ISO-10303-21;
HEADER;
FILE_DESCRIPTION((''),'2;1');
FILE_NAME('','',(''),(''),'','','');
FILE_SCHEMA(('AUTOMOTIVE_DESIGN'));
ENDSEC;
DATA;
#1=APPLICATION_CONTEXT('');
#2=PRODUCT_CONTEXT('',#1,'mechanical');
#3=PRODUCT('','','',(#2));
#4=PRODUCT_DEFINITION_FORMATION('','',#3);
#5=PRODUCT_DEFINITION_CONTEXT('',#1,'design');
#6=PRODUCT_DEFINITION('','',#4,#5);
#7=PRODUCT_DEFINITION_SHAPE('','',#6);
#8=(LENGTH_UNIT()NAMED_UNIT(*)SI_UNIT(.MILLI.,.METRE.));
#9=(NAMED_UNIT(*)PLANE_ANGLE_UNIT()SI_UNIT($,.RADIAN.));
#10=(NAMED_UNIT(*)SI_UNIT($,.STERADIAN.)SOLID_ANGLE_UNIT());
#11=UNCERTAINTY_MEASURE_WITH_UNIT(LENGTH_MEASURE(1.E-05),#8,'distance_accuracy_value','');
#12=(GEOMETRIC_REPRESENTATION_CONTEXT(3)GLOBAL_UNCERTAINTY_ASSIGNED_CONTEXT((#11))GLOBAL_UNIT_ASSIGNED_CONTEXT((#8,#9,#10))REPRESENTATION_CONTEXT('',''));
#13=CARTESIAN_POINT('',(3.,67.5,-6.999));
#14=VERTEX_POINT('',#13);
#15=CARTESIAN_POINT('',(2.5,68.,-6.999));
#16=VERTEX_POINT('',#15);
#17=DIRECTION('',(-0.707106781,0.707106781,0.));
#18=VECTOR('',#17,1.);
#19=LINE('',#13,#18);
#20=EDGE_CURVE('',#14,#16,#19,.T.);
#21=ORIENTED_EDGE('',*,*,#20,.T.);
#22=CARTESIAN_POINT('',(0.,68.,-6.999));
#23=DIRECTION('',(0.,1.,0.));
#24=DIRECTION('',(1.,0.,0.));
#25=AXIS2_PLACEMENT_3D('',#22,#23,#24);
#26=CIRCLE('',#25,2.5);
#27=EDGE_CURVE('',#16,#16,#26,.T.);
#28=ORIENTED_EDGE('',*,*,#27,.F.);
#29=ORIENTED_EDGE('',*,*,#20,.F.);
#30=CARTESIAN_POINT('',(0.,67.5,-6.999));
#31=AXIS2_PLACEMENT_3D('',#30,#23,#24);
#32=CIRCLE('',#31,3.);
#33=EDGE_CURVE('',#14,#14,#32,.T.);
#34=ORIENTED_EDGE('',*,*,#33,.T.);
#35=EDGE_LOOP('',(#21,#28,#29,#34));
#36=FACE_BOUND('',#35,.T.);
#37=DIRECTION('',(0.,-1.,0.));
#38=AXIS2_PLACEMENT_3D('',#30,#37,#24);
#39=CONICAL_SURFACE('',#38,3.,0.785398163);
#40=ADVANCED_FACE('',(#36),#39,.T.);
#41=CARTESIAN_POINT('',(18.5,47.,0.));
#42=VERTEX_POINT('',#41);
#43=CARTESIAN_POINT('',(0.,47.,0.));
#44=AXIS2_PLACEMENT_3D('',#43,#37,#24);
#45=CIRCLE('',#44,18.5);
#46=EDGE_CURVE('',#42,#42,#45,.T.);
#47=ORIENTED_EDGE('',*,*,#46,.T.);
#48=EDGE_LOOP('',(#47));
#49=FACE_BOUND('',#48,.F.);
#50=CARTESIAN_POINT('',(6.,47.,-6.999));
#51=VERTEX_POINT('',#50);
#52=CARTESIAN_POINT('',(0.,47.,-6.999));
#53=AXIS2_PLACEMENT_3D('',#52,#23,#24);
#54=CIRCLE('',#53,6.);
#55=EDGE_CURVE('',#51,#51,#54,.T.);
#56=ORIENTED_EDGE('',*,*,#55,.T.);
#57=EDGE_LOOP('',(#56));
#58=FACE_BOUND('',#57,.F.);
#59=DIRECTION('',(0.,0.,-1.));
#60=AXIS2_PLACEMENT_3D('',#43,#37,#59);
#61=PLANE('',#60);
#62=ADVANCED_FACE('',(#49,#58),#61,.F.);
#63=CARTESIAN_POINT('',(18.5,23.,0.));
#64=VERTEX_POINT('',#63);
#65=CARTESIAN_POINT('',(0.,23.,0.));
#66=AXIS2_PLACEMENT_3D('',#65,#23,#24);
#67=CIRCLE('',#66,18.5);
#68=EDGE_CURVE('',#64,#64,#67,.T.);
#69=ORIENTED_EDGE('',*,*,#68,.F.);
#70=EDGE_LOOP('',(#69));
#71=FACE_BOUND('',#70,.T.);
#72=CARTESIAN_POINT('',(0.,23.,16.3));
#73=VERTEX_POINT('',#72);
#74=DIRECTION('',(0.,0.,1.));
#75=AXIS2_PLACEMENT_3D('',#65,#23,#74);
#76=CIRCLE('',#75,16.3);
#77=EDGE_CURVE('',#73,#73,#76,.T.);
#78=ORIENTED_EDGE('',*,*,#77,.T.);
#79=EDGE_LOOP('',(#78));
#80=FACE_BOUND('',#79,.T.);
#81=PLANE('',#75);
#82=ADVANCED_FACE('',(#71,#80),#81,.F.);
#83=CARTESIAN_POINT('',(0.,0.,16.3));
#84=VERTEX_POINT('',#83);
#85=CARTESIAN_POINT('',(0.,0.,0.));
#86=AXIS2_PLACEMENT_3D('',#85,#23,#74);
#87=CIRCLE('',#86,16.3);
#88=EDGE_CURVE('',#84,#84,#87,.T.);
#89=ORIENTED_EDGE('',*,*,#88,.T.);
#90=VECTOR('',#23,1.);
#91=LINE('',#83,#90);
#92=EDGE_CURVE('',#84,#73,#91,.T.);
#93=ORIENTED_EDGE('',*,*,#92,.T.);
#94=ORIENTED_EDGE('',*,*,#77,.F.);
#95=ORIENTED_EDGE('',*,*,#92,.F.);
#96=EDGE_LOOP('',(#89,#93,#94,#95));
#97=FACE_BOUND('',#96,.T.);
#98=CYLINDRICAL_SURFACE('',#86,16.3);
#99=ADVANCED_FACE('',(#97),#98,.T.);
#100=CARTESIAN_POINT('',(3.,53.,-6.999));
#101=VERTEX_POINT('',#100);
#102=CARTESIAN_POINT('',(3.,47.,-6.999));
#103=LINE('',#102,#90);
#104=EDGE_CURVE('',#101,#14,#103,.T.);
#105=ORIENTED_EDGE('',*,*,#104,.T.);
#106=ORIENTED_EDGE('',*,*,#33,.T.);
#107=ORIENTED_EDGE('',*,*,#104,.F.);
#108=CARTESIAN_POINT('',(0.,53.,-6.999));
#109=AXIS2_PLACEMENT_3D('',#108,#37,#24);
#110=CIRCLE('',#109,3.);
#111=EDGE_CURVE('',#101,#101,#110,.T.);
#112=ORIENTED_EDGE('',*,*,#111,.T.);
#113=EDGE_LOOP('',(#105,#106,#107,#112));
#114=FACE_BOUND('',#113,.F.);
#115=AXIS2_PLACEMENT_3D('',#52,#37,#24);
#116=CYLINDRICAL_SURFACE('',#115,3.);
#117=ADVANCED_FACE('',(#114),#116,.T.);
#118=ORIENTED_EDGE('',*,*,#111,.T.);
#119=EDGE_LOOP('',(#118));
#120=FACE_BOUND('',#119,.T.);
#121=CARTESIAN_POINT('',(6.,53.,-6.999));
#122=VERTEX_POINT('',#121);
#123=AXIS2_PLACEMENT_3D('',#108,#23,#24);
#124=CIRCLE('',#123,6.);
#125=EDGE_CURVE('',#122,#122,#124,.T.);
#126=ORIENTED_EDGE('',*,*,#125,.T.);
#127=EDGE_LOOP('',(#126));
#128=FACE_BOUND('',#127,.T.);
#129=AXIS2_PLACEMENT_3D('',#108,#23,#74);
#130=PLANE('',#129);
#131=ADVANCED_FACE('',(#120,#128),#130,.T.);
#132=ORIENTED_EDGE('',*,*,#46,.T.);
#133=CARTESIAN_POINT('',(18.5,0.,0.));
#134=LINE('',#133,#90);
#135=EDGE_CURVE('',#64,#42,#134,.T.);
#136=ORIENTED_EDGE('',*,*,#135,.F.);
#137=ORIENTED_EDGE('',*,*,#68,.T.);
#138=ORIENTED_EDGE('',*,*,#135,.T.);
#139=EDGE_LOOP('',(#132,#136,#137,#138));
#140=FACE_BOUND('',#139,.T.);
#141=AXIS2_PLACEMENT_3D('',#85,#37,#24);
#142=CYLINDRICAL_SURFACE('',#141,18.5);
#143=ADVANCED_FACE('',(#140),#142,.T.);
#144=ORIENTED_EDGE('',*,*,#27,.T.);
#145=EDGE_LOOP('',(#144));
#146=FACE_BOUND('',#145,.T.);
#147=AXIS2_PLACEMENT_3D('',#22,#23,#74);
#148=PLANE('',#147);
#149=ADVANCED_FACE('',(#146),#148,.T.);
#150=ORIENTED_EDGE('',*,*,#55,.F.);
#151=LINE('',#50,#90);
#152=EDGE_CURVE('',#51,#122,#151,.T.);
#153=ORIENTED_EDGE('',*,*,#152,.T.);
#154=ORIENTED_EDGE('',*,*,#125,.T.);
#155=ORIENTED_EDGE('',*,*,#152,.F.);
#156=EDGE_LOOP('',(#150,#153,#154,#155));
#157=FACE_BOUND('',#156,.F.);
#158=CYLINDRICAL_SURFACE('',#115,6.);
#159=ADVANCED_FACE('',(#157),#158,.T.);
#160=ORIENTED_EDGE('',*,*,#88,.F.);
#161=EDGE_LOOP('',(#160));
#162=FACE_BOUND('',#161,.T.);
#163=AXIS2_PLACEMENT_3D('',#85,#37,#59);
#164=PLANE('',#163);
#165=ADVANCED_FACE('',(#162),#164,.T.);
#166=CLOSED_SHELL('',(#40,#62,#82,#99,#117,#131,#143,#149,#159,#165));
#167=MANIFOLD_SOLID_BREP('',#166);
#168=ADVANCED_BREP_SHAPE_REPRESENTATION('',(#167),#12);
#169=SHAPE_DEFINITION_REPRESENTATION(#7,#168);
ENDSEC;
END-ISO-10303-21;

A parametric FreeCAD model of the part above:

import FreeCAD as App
import Part
import Sketcher
from FreeCAD import Vector


def edges_at(feature, points):
    """Names of the edges that pass closest to the given points."""
    edges = feature.Shape.Edges
    near = lambda p: min(range(len(edges)), key=lambda i: edges[i].distToShape(Part.Vertex(*p))[0])
    return sorted({f"Edge{near(p) + 1}" for p in points})


def add_polygon(sketch, points):
    """Adds a closed chain of lines whose ends are joined by coincident constraints."""
    first, n = sketch.GeometryCount, len(points)
    for a, b in zip(points, points[1:] + points[:1]):
        sketch.addGeometry(Part.LineSegment(App.Vector(*a, 0), App.Vector(*b, 0)), False)
    for i in range(n):
        sketch.addConstraint(Sketcher.Constraint("Coincident", first + i, 2, first + (i + 1) % n, 1))

doc = App.newDocument("Part")
params = doc.addObject("Spreadsheet::Sheet", "Params")
for row, (alias, value) in enumerate([
    ("sketch1_diameter", "37 mm"),
    ("pad1_length", "47 mm"),
    ("sketch2_diameter", "12 mm"),
    ("pad2_length", "6 mm"),
    ("sketch3_diameter", "6 mm"),
    ("pad3_length", "21 mm"),
    ("chamfer_size", "0.5 mm"),
    ("sketch4_width", "23 mm"),
    ("sketch4_height", "2.2 mm"),
    ("groove_angle", "360 deg"),
], start=1):
    params.set(f"A{row}", alias)
    params.set(f"B{row}", "=" + value)
    params.setAlias(f"B{row}", alias)

body = doc.addObject("PartDesign::Body", "Body")

# Sketch on XZ plane
sketch1 = doc.addObject("Sketcher::SketchObject", "Sketch")
body.addObject(sketch1)
sketch1.AttachmentSupport = (doc.XZ_Plane, [""])
sketch1.MapMode = "FlatFace"
sketch1.addGeometry(Part.Circle(Vector(0, 0, 0), Vector(0, 0, 1), 18), False)
sketch1.addConstraint([
    Sketcher.Constraint("Coincident", 0, 3, -1, 1),
    Sketcher.Constraint("Diameter", 0, 37.0),
])
sketch1.setExpression("Constraints[1]", "Params.sketch1_diameter")
pad1 = doc.addObject("PartDesign::Pad", "Pad")
body.addObject(pad1)
pad1.Profile = sketch1
pad1.setExpression("Length", "Params.pad1_length")
pad1.Reversed = True

# Sketch on XZ plane
sketch2 = doc.addObject("Sketcher::SketchObject", "Sketch001")
body.addObject(sketch2)
sketch2.AttachmentSupport = (doc.XZ_Plane, [""])
sketch2.MapMode = "FlatFace"
sketch2.AttachmentOffset = App.Placement(Vector(0, 0, -47), App.Rotation())
sketch2.addGeometry(Part.Circle(Vector(0, -7, 0), Vector(0, 0, 1), 6), False)
sketch2.addConstraint([
    Sketcher.Constraint("PointOnObject", 0, 3, -2),
    Sketcher.Constraint("Diameter", 0, 12.0),
    Sketcher.Constraint("DistanceY", 0, 3, -1, 1, 6.999),
])
sketch2.setExpression("Constraints[1]", "Params.sketch2_diameter")
pad2 = doc.addObject("PartDesign::Pad", "Pad001")
body.addObject(pad2)
pad2.Profile = sketch2
pad2.setExpression("Length", "Params.pad2_length")
pad2.Reversed = True

# Sketch on XZ plane
sketch3 = doc.addObject("Sketcher::SketchObject", "Sketch002")
body.addObject(sketch3)
sketch3.AttachmentSupport = (doc.XZ_Plane, [""])
sketch3.MapMode = "FlatFace"
sketch3.AttachmentOffset = App.Placement(Vector(0, 0, -47), App.Rotation())
sketch3.addGeometry(Part.Circle(Vector(0, -7, 0), Vector(0, 0, 1), 3), False)
sketch3.addConstraint([
    Sketcher.Constraint("PointOnObject", 0, 3, -2),
    Sketcher.Constraint("Diameter", 0, 6.0),
    Sketcher.Constraint("DistanceY", 0, 3, -1, 1, 6.999),
])
sketch3.setExpression("Constraints[1]", "Params.sketch3_diameter")
pad3 = doc.addObject("PartDesign::Pad", "Pad002")
body.addObject(pad3)
pad3.Profile = sketch3
pad3.setExpression("Length", "Params.pad3_length")
pad3.Reversed = True
doc.recompute()

chamfer = doc.addObject("PartDesign::Chamfer", "Chamfer")
body.addObject(chamfer)
chamfer.Base = (pad3, edges_at(pad3, [(-3, 68, -6.999)]))
chamfer.setExpression("Size", "Params.chamfer_size")

# Sketch on YZ plane
sketch4 = doc.addObject("Sketcher::SketchObject", "Sketch003")
body.addObject(sketch4)
sketch4.AttachmentSupport = (doc.YZ_Plane, [""])
sketch4.MapMode = "FlatFace"
add_polygon(sketch4, [(23, 16.3), (0, 16.3), (0, 18.5), (23, 18.5)])  # lines 0-3
sketch4.addConstraint([
    Sketcher.Constraint("Horizontal", 0),
    Sketcher.Constraint("Vertical", 1),
    Sketcher.Constraint("Horizontal", 2),
    Sketcher.Constraint("Vertical", 3),
    Sketcher.Constraint("PointOnObject", 0, 2, -2),
    Sketcher.Constraint("DistanceX", 0, 2, 0, 1, 23.0),
    Sketcher.Constraint("DistanceY", 1, 1, 1, 2, 2.2),
    Sketcher.Constraint("DistanceY", -1, 1, 0, 2, 16.3),
])
sketch4.setExpression("Constraints[9]", "Params.sketch4_width")
sketch4.setExpression("Constraints[10]", "Params.sketch4_height")
groove = doc.addObject("PartDesign::Groove", "Groove")
body.addObject(groove)
groove.Profile = sketch4
groove.ReferenceAxis = (sketch4, ["H_Axis"])
groove.setExpression("Angle", "Params.groove_angle")

doc.recompute()
